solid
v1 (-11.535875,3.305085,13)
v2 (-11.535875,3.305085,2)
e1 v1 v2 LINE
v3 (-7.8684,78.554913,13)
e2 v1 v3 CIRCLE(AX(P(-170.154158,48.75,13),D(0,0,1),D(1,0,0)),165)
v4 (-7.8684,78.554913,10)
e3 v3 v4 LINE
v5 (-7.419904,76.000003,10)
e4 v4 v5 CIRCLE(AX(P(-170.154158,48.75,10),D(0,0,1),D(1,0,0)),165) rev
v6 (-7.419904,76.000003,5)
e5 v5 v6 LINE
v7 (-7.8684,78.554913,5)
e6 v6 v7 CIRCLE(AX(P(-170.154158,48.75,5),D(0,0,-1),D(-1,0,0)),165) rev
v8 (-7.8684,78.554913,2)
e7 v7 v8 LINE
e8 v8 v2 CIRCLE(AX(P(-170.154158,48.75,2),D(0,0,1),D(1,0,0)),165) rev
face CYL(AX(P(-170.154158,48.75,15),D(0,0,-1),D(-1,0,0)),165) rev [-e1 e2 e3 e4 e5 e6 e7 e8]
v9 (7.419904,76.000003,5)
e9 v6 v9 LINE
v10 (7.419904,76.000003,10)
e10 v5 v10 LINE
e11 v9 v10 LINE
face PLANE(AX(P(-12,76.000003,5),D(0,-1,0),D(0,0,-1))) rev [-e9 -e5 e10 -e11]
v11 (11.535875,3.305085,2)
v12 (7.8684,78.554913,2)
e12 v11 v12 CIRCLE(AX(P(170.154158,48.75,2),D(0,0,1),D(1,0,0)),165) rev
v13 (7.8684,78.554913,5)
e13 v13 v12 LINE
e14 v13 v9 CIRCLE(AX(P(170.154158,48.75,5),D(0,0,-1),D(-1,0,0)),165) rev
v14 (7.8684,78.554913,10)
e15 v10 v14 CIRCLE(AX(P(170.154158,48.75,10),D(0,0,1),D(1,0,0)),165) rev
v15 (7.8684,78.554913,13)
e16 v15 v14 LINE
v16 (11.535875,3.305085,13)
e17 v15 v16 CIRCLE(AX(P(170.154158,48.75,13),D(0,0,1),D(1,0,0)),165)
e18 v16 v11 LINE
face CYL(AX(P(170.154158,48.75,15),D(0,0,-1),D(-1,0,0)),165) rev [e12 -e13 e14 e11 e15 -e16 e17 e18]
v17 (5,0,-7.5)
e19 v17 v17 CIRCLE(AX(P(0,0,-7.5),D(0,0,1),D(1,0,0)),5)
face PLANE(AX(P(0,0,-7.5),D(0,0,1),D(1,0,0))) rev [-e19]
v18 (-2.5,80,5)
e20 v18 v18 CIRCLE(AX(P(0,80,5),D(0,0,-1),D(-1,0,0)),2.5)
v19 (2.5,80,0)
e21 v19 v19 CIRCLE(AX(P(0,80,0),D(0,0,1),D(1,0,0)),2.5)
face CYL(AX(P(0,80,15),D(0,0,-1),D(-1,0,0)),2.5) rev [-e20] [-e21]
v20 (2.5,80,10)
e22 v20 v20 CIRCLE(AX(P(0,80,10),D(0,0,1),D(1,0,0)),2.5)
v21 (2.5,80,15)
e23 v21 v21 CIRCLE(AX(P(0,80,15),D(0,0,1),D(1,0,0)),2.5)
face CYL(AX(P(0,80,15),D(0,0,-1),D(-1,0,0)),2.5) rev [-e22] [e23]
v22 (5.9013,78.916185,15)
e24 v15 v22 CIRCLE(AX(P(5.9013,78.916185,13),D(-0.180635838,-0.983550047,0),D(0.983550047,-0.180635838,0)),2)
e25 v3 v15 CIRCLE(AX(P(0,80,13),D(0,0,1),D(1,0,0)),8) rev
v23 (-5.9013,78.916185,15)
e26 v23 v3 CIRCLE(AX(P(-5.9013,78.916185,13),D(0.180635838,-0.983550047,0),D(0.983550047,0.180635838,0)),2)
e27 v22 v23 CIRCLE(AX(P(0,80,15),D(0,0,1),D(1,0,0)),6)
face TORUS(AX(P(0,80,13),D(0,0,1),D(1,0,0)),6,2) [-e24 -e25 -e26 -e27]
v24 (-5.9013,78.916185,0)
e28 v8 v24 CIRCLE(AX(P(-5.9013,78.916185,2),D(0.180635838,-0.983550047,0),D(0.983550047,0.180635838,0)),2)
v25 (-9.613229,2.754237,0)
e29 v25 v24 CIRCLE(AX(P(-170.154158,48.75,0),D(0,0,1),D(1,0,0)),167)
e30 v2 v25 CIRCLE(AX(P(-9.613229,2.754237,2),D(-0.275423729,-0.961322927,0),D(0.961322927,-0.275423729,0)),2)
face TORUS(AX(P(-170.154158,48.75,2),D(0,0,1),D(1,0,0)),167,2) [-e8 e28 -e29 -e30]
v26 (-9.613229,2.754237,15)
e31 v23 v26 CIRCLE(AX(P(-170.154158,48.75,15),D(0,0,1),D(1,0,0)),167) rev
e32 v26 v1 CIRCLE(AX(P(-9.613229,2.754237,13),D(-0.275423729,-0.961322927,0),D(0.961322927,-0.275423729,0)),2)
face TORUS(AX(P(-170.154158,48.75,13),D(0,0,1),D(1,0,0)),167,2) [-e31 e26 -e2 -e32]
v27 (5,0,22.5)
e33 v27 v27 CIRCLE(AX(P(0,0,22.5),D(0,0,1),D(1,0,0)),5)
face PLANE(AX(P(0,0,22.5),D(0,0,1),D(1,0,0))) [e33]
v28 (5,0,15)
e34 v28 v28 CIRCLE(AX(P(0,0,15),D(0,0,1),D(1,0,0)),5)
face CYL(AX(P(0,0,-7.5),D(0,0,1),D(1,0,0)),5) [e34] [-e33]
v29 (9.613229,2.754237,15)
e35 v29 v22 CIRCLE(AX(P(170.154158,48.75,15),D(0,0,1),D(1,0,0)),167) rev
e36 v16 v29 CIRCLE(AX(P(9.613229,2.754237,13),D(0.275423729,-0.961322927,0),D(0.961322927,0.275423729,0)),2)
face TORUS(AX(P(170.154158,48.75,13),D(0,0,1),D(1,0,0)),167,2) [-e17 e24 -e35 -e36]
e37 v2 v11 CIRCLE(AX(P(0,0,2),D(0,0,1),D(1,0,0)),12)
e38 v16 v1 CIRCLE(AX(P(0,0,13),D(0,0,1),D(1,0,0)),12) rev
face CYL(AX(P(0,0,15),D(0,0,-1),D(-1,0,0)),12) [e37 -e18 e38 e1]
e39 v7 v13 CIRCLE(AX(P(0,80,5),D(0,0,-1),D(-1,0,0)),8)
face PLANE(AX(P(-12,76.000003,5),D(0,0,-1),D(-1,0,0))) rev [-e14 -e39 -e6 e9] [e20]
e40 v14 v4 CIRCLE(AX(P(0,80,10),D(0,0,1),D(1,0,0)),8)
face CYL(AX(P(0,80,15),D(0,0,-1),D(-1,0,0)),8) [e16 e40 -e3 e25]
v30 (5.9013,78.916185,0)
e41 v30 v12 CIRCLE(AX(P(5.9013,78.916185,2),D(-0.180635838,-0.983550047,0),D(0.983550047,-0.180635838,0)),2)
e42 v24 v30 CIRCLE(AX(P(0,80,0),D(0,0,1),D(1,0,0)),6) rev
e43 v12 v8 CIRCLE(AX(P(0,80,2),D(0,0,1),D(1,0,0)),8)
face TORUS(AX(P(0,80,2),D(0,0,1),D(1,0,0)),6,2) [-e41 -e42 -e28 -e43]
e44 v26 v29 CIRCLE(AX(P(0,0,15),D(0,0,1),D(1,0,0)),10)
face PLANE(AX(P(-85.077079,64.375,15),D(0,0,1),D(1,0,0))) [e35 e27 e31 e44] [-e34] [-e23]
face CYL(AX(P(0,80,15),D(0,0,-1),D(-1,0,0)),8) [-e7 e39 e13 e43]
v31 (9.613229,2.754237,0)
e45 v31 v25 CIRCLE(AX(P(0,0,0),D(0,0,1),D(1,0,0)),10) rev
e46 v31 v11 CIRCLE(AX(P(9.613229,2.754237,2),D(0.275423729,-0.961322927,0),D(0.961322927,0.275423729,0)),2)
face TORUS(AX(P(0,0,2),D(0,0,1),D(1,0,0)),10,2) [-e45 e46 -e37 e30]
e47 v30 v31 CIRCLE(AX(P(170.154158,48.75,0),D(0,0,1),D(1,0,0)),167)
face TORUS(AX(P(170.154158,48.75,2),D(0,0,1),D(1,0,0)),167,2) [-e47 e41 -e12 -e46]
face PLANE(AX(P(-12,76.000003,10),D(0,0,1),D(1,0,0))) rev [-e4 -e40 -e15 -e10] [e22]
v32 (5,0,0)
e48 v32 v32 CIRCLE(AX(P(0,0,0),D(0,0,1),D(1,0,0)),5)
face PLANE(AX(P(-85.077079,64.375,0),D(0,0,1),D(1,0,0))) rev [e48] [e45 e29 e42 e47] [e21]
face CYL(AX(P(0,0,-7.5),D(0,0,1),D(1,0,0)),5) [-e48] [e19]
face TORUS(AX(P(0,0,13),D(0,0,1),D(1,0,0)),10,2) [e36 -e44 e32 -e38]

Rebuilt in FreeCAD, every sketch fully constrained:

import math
import FreeCAD as App
import Part
import Sketcher
Q = App.Units.Quantity


def edges_at(feature, points):
    """Names of the edges that pass closest to the given points."""
    edges = feature.Shape.Edges
    near = lambda p: min(range(len(edges)), key=lambda i: edges[i].distToShape(Part.Vertex(*p))[0])
    return sorted({f"Edge{near(p) + 1}" for p in points})

doc = App.newDocument("Part")
params = doc.addObject("Spreadsheet::Sheet", "Params")
for row, (alias, value) in enumerate([
    ("sketch1_diameter", "5 mm"),
    ("sketch1_radius", "8 mm"),
    ("sketch1_radius2", "165 mm"),
    ("sketch1_radius3", "12 mm"),
    ("pad1_length", "15 mm"),
    ("fillet_radius", "2 mm"),
    ("sketch2_width", "12 mm"),
    ("sketch2_height", "5 mm"),
    ("sketch3_diameter", "10 mm"),
    ("pad2_length", "22.5 mm"),
    ("pad2_length2", "7.5 mm"),
], start=1):
    params.set(f"A{row}", alias)
    params.set(f"B{row}", "=" + value)
    params.setAlias(f"B{row}", alias)

body = doc.addObject("PartDesign::Body", "Body")

sketch1 = body.newObject("Sketcher::SketchObject", "Sketch")
sketch1.AttachmentSupport = (doc.getObject("XY_Plane"), [""])
sketch1.MapMode = "FlatFace"
sketch1.addGeometry([
    Part.ArcOfCircle(Part.Circle(App.Vector(0, 80, 0), App.Vector(0, 0, 1), 8), math.radians(-10), math.radians(190)),
    Part.ArcOfCircle(Part.Circle(App.Vector(-170.2, 48.8, 0), App.Vector(0, 0, 1), 165), math.radians(-16), math.radians(10)),
    Part.ArcOfCircle(Part.Circle(App.Vector(0, 0, 0), App.Vector(0, 0, 1), 12), math.radians(164), math.radians(376)),
    Part.ArcOfCircle(Part.Circle(App.Vector(170.2, 48.8, 0), App.Vector(0, 0, 1), 165), math.radians(170), math.radians(196)),
    Part.Circle(App.Vector(0, 80, 0), App.Vector(0, 0, 1), 2.5),
], False)
sketch1.addConstraint([
    Sketcher.Constraint("Tangent", 0, 2, 1, 2),
    Sketcher.Constraint("Tangent", 1, 1, 2, 1),
    Sketcher.Constraint("Tangent", 2, 2, 3, 2),
    Sketcher.Constraint("Tangent", 3, 1, 0, 1),
    Sketcher.Constraint("Coincident", 2, 3, -1, 1),
    Sketcher.Constraint("Coincident", 4, 3, 0, 3),
    Sketcher.Constraint("Equal", 1, 3),
    Sketcher.Constraint("PointOnObject", 0, 3, -2),
    Sketcher.Constraint("Diameter", 4, Q("5 mm")),
    Sketcher.Constraint("Radius", 0, Q("8 mm")),
    Sketcher.Constraint("Radius", 1, Q("165 mm")),
    Sketcher.Constraint("Radius", 2, Q("12 mm")),
    Sketcher.Constraint("DistanceY", -1, 1, 0, 3, Q("80 mm")),
])
sketch1.setExpression("Constraints[8]", "Params.sketch1_diameter")
sketch1.setExpression("Constraints[9]", "Params.sketch1_radius")
sketch1.setExpression("Constraints[10]", "Params.sketch1_radius2")
sketch1.setExpression("Constraints[11]", "Params.sketch1_radius3")
pad1 = body.newObject("PartDesign::Pad", "Pad")
pad1.Profile = sketch1
pad1.setExpression("Length", "Params.pad1_length")
doc.recompute()

fillet = body.newObject("PartDesign::Fillet", "Fillet")
fillet.Base = (pad1, edges_at(pad1, [
    (5.35, 40.718, 15),
    (0, 88, 15),
    (-5.35, 40.718, 15),
    (0, 88, 0),
    (5.35, 40.718, 0),
    (0, -12, 0),
    (-5.35, 40.718, 0),
    (0, -12, 15),
]))
fillet.setExpression("Radius", "Params.fillet_radius")

sketch2 = body.newObject("Sketcher::SketchObject", "Sketch001")
sketch2.AttachmentSupport = (doc.getObject("YZ_Plane"), [""])
sketch2.MapMode = "FlatFace"
sketch2.addGeometry([
    Part.LineSegment(App.Vector(88, 10, 0), App.Vector(76, 10, 0)),
    Part.LineSegment(App.Vector(76, 10, 0), App.Vector(76, 5, 0)),
    Part.LineSegment(App.Vector(76, 5, 0), App.Vector(88, 5, 0)),
    Part.LineSegment(App.Vector(88, 5, 0), App.Vector(88, 10, 0)),
], False)
sketch2.addConstraint([
    Sketcher.Constraint("Coincident", 0, 2, 1, 1),
    Sketcher.Constraint("Coincident", 1, 2, 2, 1),
    Sketcher.Constraint("Coincident", 2, 2, 3, 1),
    Sketcher.Constraint("Coincident", 3, 2, 0, 1),
    Sketcher.Constraint("Horizontal", 0),
    Sketcher.Constraint("Vertical", 1),
    Sketcher.Constraint("Horizontal", 2),
    Sketcher.Constraint("Vertical", 3),
    Sketcher.Constraint("DistanceX", 0, 2, 0, 1, Q("12 mm")),
    Sketcher.Constraint("DistanceY", 1, 2, 1, 1, Q("5 mm")),
    Sketcher.Constraint("DistanceY", -1, 1, 0, 2, Q("10 mm")),
    Sketcher.Constraint("DistanceX", -1, 1, 0, 2, Q("76.000003 mm")),
])
sketch2.setExpression("Constraints[8]", "Params.sketch2_width")
sketch2.setExpression("Constraints[9]", "Params.sketch2_height")
pocket1 = body.newObject("PartDesign::Pocket", "Pocket")
pocket1.Profile = sketch2
pocket1.Type = "ThroughAll"
pocket1.Midplane = True

sketch3 = body.newObject("Sketcher::SketchObject", "Sketch002")
sketch3.AttachmentSupport = (doc.getObject("XY_Plane"), [""])
sketch3.MapMode = "FlatFace"
sketch3.addGeometry(Part.Circle(App.Vector(0, 0, 0), App.Vector(0, 0, 1), 5), False)
sketch3.addConstraint([
    Sketcher.Constraint("Coincident", 0, 3, -1, 1),
    Sketcher.Constraint("Diameter", 0, Q("10 mm")),
])
sketch3.setExpression("Constraints[1]", "Params.sketch3_diameter")
pad2 = body.newObject("PartDesign::Pad", "Pad001")
pad2.Profile = sketch3
pad2.Type = "TwoLengths"
pad2.setExpression("Length", "Params.pad2_length")
pad2.setExpression("Length2", "Params.pad2_length2")

doc.recompute()
